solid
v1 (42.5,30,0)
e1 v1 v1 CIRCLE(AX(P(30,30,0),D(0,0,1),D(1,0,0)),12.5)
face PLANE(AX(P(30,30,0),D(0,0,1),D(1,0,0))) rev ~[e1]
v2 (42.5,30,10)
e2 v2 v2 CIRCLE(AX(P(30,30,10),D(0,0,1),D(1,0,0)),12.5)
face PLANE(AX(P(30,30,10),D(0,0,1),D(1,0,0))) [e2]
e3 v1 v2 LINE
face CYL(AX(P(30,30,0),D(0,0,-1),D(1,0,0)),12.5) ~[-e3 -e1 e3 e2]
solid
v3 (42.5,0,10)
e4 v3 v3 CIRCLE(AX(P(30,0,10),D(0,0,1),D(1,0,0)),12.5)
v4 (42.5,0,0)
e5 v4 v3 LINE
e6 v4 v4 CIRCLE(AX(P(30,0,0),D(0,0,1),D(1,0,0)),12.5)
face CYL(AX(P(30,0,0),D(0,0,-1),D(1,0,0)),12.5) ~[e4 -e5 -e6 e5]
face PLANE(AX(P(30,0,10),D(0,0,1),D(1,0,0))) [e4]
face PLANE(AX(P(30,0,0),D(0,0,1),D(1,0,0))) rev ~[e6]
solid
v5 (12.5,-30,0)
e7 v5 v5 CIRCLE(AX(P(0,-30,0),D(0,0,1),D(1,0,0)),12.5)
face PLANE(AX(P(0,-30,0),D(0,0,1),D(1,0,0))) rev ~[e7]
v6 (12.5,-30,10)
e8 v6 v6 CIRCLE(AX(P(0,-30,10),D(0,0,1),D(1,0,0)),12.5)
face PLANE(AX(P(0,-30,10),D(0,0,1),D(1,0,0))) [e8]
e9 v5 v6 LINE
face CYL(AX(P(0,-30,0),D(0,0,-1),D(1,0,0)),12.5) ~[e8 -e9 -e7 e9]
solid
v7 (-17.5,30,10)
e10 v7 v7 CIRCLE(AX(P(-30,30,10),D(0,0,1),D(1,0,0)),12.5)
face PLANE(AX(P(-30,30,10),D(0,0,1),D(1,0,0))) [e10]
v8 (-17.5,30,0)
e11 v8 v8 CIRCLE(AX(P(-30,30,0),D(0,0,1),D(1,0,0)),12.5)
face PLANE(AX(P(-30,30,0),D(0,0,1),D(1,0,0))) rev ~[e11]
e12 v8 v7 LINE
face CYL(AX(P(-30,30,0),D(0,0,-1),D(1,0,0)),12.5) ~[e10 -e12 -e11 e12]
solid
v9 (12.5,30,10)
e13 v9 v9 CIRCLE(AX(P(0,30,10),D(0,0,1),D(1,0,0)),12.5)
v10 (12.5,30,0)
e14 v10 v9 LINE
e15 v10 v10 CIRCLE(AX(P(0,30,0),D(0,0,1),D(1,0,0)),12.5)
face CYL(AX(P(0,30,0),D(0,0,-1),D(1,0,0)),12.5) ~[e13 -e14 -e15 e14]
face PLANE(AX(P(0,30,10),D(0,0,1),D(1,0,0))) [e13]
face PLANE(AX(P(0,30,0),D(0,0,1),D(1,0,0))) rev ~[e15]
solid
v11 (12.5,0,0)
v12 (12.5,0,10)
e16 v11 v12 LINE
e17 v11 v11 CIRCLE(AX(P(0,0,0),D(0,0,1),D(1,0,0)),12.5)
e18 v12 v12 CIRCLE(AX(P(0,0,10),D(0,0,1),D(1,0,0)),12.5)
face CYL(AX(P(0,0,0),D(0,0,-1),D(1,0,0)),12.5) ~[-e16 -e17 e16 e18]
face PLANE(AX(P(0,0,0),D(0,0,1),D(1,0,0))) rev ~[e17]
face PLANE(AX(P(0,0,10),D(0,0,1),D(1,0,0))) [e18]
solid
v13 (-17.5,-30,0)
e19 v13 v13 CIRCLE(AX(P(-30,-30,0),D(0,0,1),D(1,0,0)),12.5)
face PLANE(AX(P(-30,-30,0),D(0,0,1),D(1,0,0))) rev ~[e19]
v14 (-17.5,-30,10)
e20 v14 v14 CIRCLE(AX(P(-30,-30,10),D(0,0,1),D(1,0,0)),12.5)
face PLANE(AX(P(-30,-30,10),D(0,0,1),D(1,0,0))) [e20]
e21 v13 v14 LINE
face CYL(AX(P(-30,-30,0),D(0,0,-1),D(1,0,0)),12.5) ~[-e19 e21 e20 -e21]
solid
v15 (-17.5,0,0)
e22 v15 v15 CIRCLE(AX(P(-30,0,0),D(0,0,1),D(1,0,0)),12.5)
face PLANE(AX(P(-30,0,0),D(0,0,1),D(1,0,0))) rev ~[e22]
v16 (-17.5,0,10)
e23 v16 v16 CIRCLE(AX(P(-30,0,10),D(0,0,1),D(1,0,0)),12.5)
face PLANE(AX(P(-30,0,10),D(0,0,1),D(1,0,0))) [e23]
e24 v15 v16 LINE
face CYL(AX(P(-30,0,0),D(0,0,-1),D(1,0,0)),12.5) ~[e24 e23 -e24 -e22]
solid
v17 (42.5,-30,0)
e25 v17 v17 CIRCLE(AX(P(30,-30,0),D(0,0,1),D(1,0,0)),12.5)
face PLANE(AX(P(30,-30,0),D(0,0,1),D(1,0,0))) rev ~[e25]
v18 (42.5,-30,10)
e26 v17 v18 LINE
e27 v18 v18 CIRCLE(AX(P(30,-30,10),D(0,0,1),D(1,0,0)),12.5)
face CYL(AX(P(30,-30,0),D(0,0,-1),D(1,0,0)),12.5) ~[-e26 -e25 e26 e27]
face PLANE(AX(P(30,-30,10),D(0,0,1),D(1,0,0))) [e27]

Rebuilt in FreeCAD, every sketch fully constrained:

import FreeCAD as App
import Part
import Sketcher
from FreeCAD import Vector
Q = App.Units.Quantity

doc = App.newDocument("Part")
params = doc.addObject("Spreadsheet::Sheet", "Params")
for row, (alias, value) in enumerate([
    ("sketch1_diameter", "25 mm"),
    ("pad1_length", "10 mm"),
], start=1):
    params.set(f"A{row}", alias)
    params.set(f"B{row}", "=" + value)
    params.setAlias(f"B{row}", alias)

body = doc.addObject("PartDesign::Body", "Body")
body.AllowCompound = True

# Sketch on XY plane
sketch1 = doc.addObject("Sketcher::SketchObject", "Sketch")
body.addObject(sketch1)
sketch1.AttachmentSupport = (doc.XY_Plane, [""])
sketch1.MapMode = "FlatFace"
sketch1.addGeometry([
    Part.Circle(Vector(-30, -30, 0), Vector(0, 0, 1), 12),  # 0
    Part.Circle(Vector(-30, 0, 0), Vector(0, 0, 1), 12),  # 1
    Part.Circle(Vector(-30, 30, 0), Vector(0, 0, 1), 12),  # 2
    Part.Circle(Vector(0, 30, 0), Vector(0, 0, 1), 12),  # 3
    Part.Circle(Vector(0, 0, 0), Vector(0, 0, 1), 12),  # 4
    Part.Circle(Vector(0, -30, 0), Vector(0, 0, 1), 12),  # 5
    Part.Circle(Vector(30, -30, 0), Vector(0, 0, 1), 12),  # 6
    Part.Circle(Vector(30, 0, 0), Vector(0, 0, 1), 12),  # 7
    Part.Circle(Vector(30, 30, 0), Vector(0, 0, 1), 12),  # 8
], False)
sketch1.addConstraint([
    Sketcher.Constraint("Coincident", 4, 3, -1, 1),
    Sketcher.Constraint("Equal", 0, 1),
    Sketcher.Constraint("Equal", 1, 2),
    Sketcher.Constraint("Equal", 2, 3),
    Sketcher.Constraint("Equal", 3, 4),
    Sketcher.Constraint("Equal", 4, 5),
    Sketcher.Constraint("Equal", 5, 6),
    Sketcher.Constraint("Equal", 6, 7),
    Sketcher.Constraint("Equal", 7, 8),
    Sketcher.Constraint("Symmetric", 3, 3, 5, 3, -1, 1),
    Sketcher.Constraint("Symmetric", 2, 3, 6, 3, -1, 1),
    Sketcher.Constraint("Symmetric", 1, 3, 7, 3, -1, 1),
    Sketcher.Constraint("Symmetric", 0, 3, 8, 3, -1, 1),
    Sketcher.Constraint("Symmetric", 0, 3, 6, 3, -2),
    Sketcher.Constraint("PointOnObject", 1, 3, -1),
    Sketcher.Constraint("PointOnObject", 3, 3, -2),
    Sketcher.Constraint("Horizontal", 2, 3, 3, 3),
    Sketcher.Constraint("Vertical", 0, 3, 1, 3),
    Sketcher.Constraint("Diameter", 0, Q("25 mm")),
    Sketcher.Constraint("DistanceX", 0, 3, -1, 1, Q("30 mm")),
    Sketcher.Constraint("DistanceY", 0, 3, -1, 1, Q("30 mm")),
])
sketch1.setExpression("Constraints[18]", "Params.sketch1_diameter")
pad1 = doc.addObject("PartDesign::Pad", "Pad")
body.addObject(pad1)
pad1.Profile = sketch1
pad1.setExpression("Length", "Params.pad1_length")

doc.recompute()
